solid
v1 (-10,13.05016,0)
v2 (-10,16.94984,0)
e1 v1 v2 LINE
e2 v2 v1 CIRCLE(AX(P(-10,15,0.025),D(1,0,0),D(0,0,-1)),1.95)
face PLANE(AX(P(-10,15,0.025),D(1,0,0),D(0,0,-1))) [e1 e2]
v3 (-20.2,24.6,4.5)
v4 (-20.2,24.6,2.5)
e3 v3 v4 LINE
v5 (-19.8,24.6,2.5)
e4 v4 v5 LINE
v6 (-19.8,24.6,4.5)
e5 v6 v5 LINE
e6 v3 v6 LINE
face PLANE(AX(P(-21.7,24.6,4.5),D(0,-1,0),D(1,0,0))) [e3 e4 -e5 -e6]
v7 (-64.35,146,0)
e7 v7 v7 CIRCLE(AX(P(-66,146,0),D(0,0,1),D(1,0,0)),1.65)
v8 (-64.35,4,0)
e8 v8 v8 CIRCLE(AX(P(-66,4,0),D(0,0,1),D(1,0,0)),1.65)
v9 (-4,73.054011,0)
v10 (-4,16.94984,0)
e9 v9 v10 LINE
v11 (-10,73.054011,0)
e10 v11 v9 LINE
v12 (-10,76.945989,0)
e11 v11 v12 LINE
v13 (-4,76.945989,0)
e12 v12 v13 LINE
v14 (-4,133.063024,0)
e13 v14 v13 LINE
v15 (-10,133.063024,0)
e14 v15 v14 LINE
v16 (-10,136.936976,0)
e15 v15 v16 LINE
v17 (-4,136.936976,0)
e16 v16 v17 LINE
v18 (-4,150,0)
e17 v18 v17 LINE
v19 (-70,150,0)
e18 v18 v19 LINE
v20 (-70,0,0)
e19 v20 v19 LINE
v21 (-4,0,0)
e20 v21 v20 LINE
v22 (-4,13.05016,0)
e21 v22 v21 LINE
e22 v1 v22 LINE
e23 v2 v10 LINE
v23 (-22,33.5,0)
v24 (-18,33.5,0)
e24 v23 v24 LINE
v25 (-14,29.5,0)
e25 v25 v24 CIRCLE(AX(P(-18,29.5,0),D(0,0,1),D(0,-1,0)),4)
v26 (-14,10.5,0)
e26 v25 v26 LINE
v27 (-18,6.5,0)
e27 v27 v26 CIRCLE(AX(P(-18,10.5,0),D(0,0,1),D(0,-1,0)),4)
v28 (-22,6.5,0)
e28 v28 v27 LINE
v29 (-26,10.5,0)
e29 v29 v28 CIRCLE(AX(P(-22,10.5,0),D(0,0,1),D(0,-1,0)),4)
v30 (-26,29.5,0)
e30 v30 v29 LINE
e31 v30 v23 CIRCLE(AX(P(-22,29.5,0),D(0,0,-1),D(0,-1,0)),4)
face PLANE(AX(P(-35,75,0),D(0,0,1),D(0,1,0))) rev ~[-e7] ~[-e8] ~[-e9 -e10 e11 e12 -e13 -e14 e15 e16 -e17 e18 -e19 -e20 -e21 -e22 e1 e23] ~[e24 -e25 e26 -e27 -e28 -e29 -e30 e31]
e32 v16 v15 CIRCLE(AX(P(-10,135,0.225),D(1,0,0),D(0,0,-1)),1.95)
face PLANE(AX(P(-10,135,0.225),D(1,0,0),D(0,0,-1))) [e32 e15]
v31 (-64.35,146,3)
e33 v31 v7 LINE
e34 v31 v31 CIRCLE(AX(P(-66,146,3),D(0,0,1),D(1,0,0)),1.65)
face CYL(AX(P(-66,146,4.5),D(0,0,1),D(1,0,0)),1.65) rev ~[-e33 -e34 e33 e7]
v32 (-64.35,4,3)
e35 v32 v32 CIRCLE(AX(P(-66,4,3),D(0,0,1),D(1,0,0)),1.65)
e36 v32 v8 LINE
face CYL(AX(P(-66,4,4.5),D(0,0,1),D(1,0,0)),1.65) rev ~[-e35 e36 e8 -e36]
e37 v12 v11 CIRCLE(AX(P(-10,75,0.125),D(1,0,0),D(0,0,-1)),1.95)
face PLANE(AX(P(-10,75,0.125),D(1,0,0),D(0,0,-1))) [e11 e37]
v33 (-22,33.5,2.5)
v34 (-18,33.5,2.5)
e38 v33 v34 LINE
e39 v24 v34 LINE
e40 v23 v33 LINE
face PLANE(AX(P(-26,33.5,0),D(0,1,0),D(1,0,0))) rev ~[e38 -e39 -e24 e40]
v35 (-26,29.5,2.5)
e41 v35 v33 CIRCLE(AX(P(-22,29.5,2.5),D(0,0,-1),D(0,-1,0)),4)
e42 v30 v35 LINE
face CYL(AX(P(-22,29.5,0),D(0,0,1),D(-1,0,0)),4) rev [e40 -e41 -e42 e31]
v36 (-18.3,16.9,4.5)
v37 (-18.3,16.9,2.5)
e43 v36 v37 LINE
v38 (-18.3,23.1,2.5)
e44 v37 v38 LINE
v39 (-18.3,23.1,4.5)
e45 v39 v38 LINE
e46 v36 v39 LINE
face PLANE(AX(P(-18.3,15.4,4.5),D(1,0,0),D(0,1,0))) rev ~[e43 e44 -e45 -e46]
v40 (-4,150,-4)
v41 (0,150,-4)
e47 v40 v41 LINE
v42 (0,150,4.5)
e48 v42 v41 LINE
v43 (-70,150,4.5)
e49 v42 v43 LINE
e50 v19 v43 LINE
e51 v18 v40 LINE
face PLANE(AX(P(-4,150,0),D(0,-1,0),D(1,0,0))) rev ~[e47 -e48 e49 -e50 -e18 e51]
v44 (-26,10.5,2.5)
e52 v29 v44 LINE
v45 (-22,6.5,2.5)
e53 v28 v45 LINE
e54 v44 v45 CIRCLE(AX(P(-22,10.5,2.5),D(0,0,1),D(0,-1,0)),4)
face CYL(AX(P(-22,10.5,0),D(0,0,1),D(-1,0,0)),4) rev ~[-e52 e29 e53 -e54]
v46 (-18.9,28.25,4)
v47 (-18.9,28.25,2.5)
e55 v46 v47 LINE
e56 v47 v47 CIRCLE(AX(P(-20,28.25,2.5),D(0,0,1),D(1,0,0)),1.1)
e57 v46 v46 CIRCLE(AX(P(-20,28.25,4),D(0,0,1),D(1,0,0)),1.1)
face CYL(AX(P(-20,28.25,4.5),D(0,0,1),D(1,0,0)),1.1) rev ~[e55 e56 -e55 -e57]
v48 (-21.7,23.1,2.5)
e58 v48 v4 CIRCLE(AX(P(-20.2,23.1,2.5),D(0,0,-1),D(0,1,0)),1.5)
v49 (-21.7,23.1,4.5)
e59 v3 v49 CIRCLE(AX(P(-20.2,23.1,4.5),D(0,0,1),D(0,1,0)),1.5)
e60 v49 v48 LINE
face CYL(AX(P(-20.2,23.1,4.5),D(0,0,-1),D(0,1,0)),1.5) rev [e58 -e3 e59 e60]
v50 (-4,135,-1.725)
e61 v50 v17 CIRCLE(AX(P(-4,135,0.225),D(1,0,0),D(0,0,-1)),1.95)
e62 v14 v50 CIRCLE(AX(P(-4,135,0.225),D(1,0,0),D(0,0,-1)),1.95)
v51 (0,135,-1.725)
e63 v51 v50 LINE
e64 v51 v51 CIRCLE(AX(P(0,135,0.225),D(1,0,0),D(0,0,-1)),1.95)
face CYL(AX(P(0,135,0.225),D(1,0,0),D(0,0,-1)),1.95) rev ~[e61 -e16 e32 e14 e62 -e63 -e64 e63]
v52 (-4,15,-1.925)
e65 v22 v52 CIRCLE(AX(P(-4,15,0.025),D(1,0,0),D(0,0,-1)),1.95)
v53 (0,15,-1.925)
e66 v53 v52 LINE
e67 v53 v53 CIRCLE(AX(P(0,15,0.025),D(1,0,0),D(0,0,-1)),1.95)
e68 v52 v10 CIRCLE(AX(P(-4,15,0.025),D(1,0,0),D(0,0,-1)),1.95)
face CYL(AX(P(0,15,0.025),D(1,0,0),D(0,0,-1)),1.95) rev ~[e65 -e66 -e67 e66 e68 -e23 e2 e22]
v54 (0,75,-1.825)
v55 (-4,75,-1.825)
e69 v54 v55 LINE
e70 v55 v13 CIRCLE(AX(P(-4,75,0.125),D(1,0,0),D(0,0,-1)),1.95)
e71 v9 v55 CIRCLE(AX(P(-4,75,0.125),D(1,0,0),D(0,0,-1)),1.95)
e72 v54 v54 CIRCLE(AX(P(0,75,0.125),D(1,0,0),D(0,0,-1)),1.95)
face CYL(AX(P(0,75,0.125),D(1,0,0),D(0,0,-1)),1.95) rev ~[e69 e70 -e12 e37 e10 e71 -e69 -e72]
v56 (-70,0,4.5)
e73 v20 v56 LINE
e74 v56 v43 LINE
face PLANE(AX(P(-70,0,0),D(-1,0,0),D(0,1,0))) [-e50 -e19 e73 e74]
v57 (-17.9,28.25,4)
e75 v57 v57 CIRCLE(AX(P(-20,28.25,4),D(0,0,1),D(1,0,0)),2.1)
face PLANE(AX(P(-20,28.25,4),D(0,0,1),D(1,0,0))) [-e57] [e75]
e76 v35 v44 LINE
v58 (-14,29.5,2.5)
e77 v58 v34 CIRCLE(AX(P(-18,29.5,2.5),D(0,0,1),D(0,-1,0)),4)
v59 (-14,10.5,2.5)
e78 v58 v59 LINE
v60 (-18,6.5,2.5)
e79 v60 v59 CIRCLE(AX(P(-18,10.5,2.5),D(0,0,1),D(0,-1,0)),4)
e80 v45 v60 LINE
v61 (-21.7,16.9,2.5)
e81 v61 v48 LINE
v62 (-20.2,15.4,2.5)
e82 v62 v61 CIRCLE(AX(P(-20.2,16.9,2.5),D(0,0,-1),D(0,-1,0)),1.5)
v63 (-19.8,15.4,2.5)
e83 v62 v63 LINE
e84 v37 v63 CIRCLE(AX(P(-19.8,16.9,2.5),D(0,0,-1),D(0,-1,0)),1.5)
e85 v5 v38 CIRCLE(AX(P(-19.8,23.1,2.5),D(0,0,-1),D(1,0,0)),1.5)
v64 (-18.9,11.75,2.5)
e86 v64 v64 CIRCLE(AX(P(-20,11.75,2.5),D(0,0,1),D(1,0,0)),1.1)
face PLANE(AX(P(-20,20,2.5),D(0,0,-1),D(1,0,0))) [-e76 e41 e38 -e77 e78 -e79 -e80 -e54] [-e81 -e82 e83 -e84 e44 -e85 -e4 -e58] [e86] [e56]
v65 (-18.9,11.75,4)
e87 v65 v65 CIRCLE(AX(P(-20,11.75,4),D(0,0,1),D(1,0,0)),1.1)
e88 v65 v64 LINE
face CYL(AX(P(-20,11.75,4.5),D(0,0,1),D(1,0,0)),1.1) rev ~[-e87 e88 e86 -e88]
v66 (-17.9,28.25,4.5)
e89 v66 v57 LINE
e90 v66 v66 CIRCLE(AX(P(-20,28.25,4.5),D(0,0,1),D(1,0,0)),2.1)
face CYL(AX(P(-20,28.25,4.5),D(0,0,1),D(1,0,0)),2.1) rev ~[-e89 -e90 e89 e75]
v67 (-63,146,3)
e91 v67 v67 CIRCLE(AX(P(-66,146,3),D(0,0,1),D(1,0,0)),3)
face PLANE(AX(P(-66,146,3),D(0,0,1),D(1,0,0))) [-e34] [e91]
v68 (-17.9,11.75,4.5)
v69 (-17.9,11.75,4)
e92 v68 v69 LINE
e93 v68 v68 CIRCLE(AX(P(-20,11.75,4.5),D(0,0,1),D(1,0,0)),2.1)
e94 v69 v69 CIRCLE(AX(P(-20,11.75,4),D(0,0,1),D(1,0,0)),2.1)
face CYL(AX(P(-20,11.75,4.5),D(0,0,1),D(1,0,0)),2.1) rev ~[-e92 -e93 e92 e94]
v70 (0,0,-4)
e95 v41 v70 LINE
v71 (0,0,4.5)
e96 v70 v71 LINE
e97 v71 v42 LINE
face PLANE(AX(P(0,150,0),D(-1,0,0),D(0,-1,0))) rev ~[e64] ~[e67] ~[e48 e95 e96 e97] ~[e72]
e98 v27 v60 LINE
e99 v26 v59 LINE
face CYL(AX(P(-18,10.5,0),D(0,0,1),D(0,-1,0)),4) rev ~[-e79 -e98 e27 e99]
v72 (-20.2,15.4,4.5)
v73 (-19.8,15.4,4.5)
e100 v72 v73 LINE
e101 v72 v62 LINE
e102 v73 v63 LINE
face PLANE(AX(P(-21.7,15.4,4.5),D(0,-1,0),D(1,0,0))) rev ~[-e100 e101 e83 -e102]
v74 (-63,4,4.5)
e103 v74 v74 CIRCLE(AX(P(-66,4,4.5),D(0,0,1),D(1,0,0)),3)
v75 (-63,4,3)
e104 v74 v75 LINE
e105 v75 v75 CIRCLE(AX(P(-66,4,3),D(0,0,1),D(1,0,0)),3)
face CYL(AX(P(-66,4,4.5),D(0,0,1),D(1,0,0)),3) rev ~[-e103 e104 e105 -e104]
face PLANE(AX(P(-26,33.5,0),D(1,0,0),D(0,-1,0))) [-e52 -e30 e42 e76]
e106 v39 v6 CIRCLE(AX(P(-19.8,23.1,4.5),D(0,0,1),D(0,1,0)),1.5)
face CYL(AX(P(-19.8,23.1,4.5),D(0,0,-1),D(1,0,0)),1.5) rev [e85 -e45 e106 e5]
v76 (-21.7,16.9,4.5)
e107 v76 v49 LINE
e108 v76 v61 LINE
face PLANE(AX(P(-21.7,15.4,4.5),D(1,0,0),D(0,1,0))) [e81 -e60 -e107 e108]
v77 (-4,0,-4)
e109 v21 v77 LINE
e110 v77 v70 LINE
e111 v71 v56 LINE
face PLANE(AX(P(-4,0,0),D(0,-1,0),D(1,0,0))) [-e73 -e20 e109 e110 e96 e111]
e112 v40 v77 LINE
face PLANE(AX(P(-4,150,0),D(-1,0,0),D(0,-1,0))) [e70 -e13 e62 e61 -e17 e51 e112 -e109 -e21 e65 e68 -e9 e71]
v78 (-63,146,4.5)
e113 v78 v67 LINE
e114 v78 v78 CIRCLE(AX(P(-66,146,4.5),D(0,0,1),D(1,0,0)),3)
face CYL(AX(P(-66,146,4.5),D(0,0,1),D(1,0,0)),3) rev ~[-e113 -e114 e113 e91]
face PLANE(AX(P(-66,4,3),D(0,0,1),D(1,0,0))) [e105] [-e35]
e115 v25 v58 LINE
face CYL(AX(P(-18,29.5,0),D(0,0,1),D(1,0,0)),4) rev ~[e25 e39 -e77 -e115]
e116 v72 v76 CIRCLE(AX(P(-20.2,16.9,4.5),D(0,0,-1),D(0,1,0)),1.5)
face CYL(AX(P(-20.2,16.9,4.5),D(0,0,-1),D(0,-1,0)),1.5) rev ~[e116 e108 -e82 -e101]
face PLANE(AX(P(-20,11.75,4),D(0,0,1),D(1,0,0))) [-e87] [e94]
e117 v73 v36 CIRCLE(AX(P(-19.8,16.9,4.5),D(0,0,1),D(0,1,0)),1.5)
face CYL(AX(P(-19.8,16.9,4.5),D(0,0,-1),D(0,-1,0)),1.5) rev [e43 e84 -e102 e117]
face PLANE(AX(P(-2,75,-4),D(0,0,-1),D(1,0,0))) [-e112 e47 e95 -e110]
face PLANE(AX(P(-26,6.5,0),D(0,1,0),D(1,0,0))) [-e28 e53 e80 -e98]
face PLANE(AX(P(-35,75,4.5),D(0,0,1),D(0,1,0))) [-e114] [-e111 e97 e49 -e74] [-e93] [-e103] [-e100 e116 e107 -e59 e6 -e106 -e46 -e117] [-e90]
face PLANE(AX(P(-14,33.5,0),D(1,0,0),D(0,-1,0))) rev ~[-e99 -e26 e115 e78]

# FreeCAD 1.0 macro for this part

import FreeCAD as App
import Part
import Sketcher

V = App.Vector


def edges_at(feature, points):
    """Names of the edges that pass closest to the given points."""
    edges = feature.Shape.Edges
    near = lambda p: min(range(len(edges)), key=lambda i: edges[i].distToShape(Part.Vertex(*p))[0])
    return sorted({f"Edge{near(p) + 1}" for p in points})

doc = App.newDocument("Part")
body = doc.addObject("PartDesign::Body", "Body")

sketch1 = doc.addObject("Sketcher::SketchObject", "Sketch")
body.addObject(sketch1)
sketch1.AttachmentSupport = (doc.XY_Plane, [""])
sketch1.MapMode = "FlatFace"
sketch1.addGeometry(Part.LineSegment(V(-70, 0, 0), V(0, 0, 0)), False)
sketch1.addGeometry(Part.LineSegment(V(0, 0, 0), V(0, 150, 0)), False)
sketch1.addGeometry(Part.LineSegment(V(0, 150, 0), V(-70, 150, 0)), False)
sketch1.addGeometry(Part.LineSegment(V(-70, 150, 0), V(-70, 0, 0)), False)
sketch1.addConstraint(Sketcher.Constraint("Coincident", 0, 2, 1, 1))
sketch1.addConstraint(Sketcher.Constraint("Coincident", 1, 2, 2, 1))
sketch1.addConstraint(Sketcher.Constraint("Coincident", 2, 2, 3, 1))
sketch1.addConstraint(Sketcher.Constraint("Coincident", 3, 2, 0, 1))
sketch1.addConstraint(Sketcher.Constraint("Horizontal", 0))
sketch1.addConstraint(Sketcher.Constraint("Vertical", 1))
sketch1.addConstraint(Sketcher.Constraint("Horizontal", 2))
sketch1.addConstraint(Sketcher.Constraint("Vertical", 3))
sketch1.addConstraint(Sketcher.Constraint("Coincident", 0, 2, -1, 1))
sketch1.addConstraint(Sketcher.Constraint("DistanceX", 0, 1, 0, 2, 70.0))
sketch1.addConstraint(Sketcher.Constraint("DistanceY", 1, 1, 1, 2, 150.0))
pad1 = doc.addObject("PartDesign::Pad", "Pad")
body.addObject(pad1)
pad1.Profile = sketch1
pad1.Length = 4.5

sketch2 = doc.addObject("Sketcher::SketchObject", "Sketch001")
body.addObject(sketch2)
sketch2.AttachmentSupport = (doc.XY_Plane, [""])
sketch2.MapMode = "FlatFace"
sketch2.addGeometry(Part.LineSegment(V(-4, 0, 0), V(-4, 150, 0)), False)
sketch2.addGeometry(Part.LineSegment(V(-4, 150, 0), V(0, 150, 0)), False)
sketch2.addGeometry(Part.LineSegment(V(0, 150, 0), V(0, 0, 0)), False)
sketch2.addGeometry(Part.LineSegment(V(0, 0, 0), V(-4, 0, 0)), False)
sketch2.addConstraint(Sketcher.Constraint("Coincident", 0, 2, 1, 1))
sketch2.addConstraint(Sketcher.Constraint("Coincident", 1, 2, 2, 1))
sketch2.addConstraint(Sketcher.Constraint("Coincident", 2, 2, 3, 1))
sketch2.addConstraint(Sketcher.Constraint("Coincident", 3, 2, 0, 1))
sketch2.addConstraint(Sketcher.Constraint("Vertical", 0))
sketch2.addConstraint(Sketcher.Constraint("Horizontal", 1))
sketch2.addConstraint(Sketcher.Constraint("Vertical", 2))
sketch2.addConstraint(Sketcher.Constraint("Horizontal", 3))
sketch2.addConstraint(Sketcher.Constraint("Coincident", 2, 2, -1, 1))
sketch2.addConstraint(Sketcher.Constraint("DistanceX", 1, 1, 1, 2, 4.0))
sketch2.addConstraint(Sketcher.Constraint("DistanceY", 0, 1, 0, 2, 150.0))
pad2 = doc.addObject("PartDesign::Pad", "Pad001")
body.addObject(pad2)
pad2.Profile = sketch2
pad2.Length = 4
pad2.Reversed = True

sketch3 = doc.addObject("Sketcher::SketchObject", "Sketch002")
body.addObject(sketch3)
sketch3.AttachmentSupport = (doc.YZ_Plane, [""])
sketch3.MapMode = "FlatFace"
sketch3.addGeometry(Part.Circle(V(15, 0, 0), V(0, 0, 1), 1.9), False)
sketch3.addGeometry(Part.Circle(V(75, 0.1, 0), V(0, 0, 1), 1.9), False)
sketch3.addGeometry(Part.Circle(V(135, 0.2, 0), V(0, 0, 1), 1.9), False)
sketch3.addConstraint(Sketcher.Constraint("Equal", 0, 1))
sketch3.addConstraint(Sketcher.Constraint("Equal", 1, 2))
sketch3.addConstraint(Sketcher.Constraint("Diameter", 0, 3.9))
sketch3.addConstraint(Sketcher.Constraint("DistanceX", -1, 1, 0, 3, 15.0))
sketch3.addConstraint(Sketcher.Constraint("DistanceX", -1, 1, 1, 3, 75.0))
sketch3.addConstraint(Sketcher.Constraint("DistanceX", -1, 1, 2, 3, 135.0))
sketch3.addConstraint(Sketcher.Constraint("DistanceY", 0, 3, 1, 3, 0.1))
sketch3.addConstraint(Sketcher.Constraint("DistanceY", 1, 3, 2, 3, 0.1))
sketch3.addConstraint(Sketcher.Constraint("DistanceY", -1, 1, 0, 3, 0.025))
pocket1 = doc.addObject("PartDesign::Pocket", "Pocket")
body.addObject(pocket1)
pocket1.Profile = sketch3
pocket1.Length = 10

sketch4 = doc.addObject("Sketcher::SketchObject", "Sketch003")
body.addObject(sketch4)
sketch4.AttachmentSupport = (doc.XY_Plane, [""])
sketch4.MapMode = "FlatFace"
sketch4.AttachmentOffset = App.Placement(V(0, 0, 4.5), App.Rotation())
sketch4.addGeometry(Part.Circle(V(-66, 146, 0), V(0, 0, 1), 1.6), False)
sketch4.addGeometry(Part.Circle(V(-66, 4, 0), V(0, 0, 1), 1.6), False)
sketch4.addConstraint(Sketcher.Constraint("Equal", 0, 1))
sketch4.addConstraint(Sketcher.Constraint("Vertical", 0, 3, 1, 3))
sketch4.addConstraint(Sketcher.Constraint("Diameter", 0, 3.3))
sketch4.addConstraint(Sketcher.Constraint("DistanceX", 0, 3, -1, 1, 66.0))
sketch4.addConstraint(Sketcher.Constraint("DistanceY", -1, 1, 0, 3, 146.0))
sketch4.addConstraint(Sketcher.Constraint("DistanceY", -1, 1, 1, 3, 4.0))
pocket2 = doc.addObject("PartDesign::Pocket", "Pocket001")
body.addObject(pocket2)
pocket2.Profile = sketch4
pocket2.Type = "ThroughAll"

sketch5 = doc.addObject("Sketcher::SketchObject", "Sketch004")
body.addObject(sketch5)
sketch5.AttachmentSupport = (doc.XY_Plane, [""])
sketch5.MapMode = "FlatFace"
sketch5.AttachmentOffset = App.Placement(V(0, 0, 4.5), App.Rotation())
sketch5.addGeometry(Part.Circle(V(-66, 146, 0), V(0, 0, 1), 3), False)
sketch5.addGeometry(Part.Circle(V(-66, 4, 0), V(0, 0, 1), 3), False)
sketch5.addConstraint(Sketcher.Constraint("Equal", 0, 1))
sketch5.addConstraint(Sketcher.Constraint("Vertical", 0, 3, 1, 3))
sketch5.addConstraint(Sketcher.Constraint("Diameter", 0, 6.0))
sketch5.addConstraint(Sketcher.Constraint("DistanceX", 0, 3, -1, 1, 66.0))
sketch5.addConstraint(Sketcher.Constraint("DistanceY", -1, 1, 0, 3, 146.0))
sketch5.addConstraint(Sketcher.Constraint("DistanceY", -1, 1, 1, 3, 4.0))
pocket3 = doc.addObject("PartDesign::Pocket", "Pocket002")
body.addObject(pocket3)
pocket3.Profile = sketch5
pocket3.Length = 1.5

sketch6 = doc.addObject("Sketcher::SketchObject", "Sketch005")
body.addObject(sketch6)
sketch6.AttachmentSupport = (doc.XY_Plane, [""])
sketch6.MapMode = "FlatFace"
sketch6.AttachmentOffset = App.Placement(V(0, 0, 4.5), App.Rotation())
sketch6.addGeometry(Part.Circle(V(-20, 28.2, 0), V(0, 0, 1), 2.1), False)
sketch6.addGeometry(Part.Circle(V(-20, 11.8, 0), V(0, 0, 1), 2.1), False)
sketch6.addConstraint(Sketcher.Constraint("Equal", 0, 1))
sketch6.addConstraint(Sketcher.Constraint("Vertical", 0, 3, 1, 3))
sketch6.addConstraint(Sketcher.Constraint("Diameter", 0, 4.2))
sketch6.addConstraint(Sketcher.Constraint("DistanceX", 0, 3, -1, 1, 20.0))
sketch6.addConstraint(Sketcher.Constraint("DistanceY", 1, 3, 0, 3, 16.5))
sketch6.addConstraint(Sketcher.Constraint("DistanceY", -1, 1, 0, 3, 28.25))
pocket4 = doc.addObject("PartDesign::Pocket", "Pocket003")
body.addObject(pocket4)
pocket4.Profile = sketch6
pocket4.Length = 0.5

sketch7 = doc.addObject("Sketcher::SketchObject", "Sketch006")
body.addObject(sketch7)
sketch7.AttachmentSupport = (doc.XY_Plane, [""])
sketch7.MapMode = "FlatFace"
sketch7.AttachmentOffset = App.Placement(V(0, 0, 4.5), App.Rotation())
sketch7.addGeometry(Part.Circle(V(-20, 11.8, 0), V(0, 0, 1), 1.1), False)
sketch7.addGeometry(Part.Circle(V(-20, 28.2, 0), V(0, 0, 1), 1.1), False)
sketch7.addGeometry(Part.LineSegment(V(-21.7, 24.6, 0), V(-21.7, 15.4, 0)), False)
sketch7.addGeometry(Part.LineSegment(V(-21.7, 15.4, 0), V(-18.3, 15.4, 0)), False)
sketch7.addGeometry(Part.LineSegment(V(-18.3, 15.4, 0), V(-18.3, 24.6, 0)), False)
sketch7.addGeometry(Part.LineSegment(V(-18.3, 24.6, 0), V(-21.7, 24.6, 0)), False)
sketch7.addConstraint(Sketcher.Constraint("Coincident", 2, 2, 3, 1))
sketch7.addConstraint(Sketcher.Constraint("Coincident", 3, 2, 4, 1))
sketch7.addConstraint(Sketcher.Constraint("Coincident", 4, 2, 5, 1))
sketch7.addConstraint(Sketcher.Constraint("Coincident", 5, 2, 2, 1))
sketch7.addConstraint(Sketcher.Constraint("Vertical", 2))
sketch7.addConstraint(Sketcher.Constraint("Horizontal", 3))
sketch7.addConstraint(Sketcher.Constraint("Vertical", 4))
sketch7.addConstraint(Sketcher.Constraint("Horizontal", 5))
sketch7.addConstraint(Sketcher.Constraint("Equal", 0, 1))
sketch7.addConstraint(Sketcher.Constraint("Vertical", 0, 3, 1, 3))
sketch7.addConstraint(Sketcher.Constraint("Diameter", 0, 2.2))
sketch7.addConstraint(Sketcher.Constraint("DistanceX", 3, 1, 3, 2, 3.4))
sketch7.addConstraint(Sketcher.Constraint("DistanceY", 2, 2, 2, 1, 9.2))
sketch7.addConstraint(Sketcher.Constraint("DistanceX", 0, 3, -1, 1, 20.0))
sketch7.addConstraint(Sketcher.Constraint("DistanceX", 2, 2, -1, 1, 21.7))
sketch7.addConstraint(Sketcher.Constraint("DistanceY", -1, 1, 2, 2, 15.4))
sketch7.addConstraint(Sketcher.Constraint("DistanceY", 0, 3, 1, 3, 16.5))
sketch7.addConstraint(Sketcher.Constraint("DistanceY", -1, 1, 0, 3, 11.75))
pocket5 = doc.addObject("PartDesign::Pocket", "Pocket004")
body.addObject(pocket5)
pocket5.Profile = sketch7
pocket5.Type = "ThroughAll"
doc.recompute()

fillet = doc.addObject("PartDesign::Fillet", "Fillet")
body.addObject(fillet)
fillet.Base = (pocket5, edges_at(pocket5, [
    (-18.3, 24.6, 2.25),
    (-18.3, 15.4, 2.25),
    (-21.7, 15.4, 2.25),
    (-21.7, 24.6, 2.25),
]))
fillet.Radius = 1.5

sketch8 = doc.addObject("Sketcher::SketchObject", "Sketch007")
body.addObject(sketch8)
sketch8.AttachmentSupport = (doc.XY_Plane, [""])
sketch8.MapMode = "FlatFace"
sketch8.addGeometry(Part.LineSegment(V(-26, 6, 0), V(-26, 34, 0)), False)
sketch8.addGeometry(Part.LineSegment(V(-26, 34, 0), V(-14, 34, 0)), False)
sketch8.addGeometry(Part.LineSegment(V(-14, 34, 0), V(-14, 6, 0)), False)
sketch8.addGeometry(Part.LineSegment(V(-14, 6, 0), V(-26, 6, 0)), False)
sketch8.addConstraint(Sketcher.Constraint("Coincident", 0, 2, 1, 1))
sketch8.addConstraint(Sketcher.Constraint("Coincident", 1, 2, 2, 1))
sketch8.addConstraint(Sketcher.Constraint("Coincident", 2, 2, 3, 1))
sketch8.addConstraint(Sketcher.Constraint("Coincident", 3, 2, 0, 1))
sketch8.addConstraint(Sketcher.Constraint("Vertical", 0))
sketch8.addConstraint(Sketcher.Constraint("Horizontal", 1))
sketch8.addConstraint(Sketcher.Constraint("Vertical", 2))
sketch8.addConstraint(Sketcher.Constraint("Horizontal", 3))
sketch8.addConstraint(Sketcher.Constraint("DistanceX", 1, 1, 1, 2, 12.0))
sketch8.addConstraint(Sketcher.Constraint("DistanceY", 0, 1, 0, 2, 27.0))
sketch8.addConstraint(Sketcher.Constraint("DistanceX", 0, 2, -1, 1, 26.0))
sketch8.addConstraint(Sketcher.Constraint("DistanceY", -1, 1, 0, 2, 33.5))
pocket6 = doc.addObject("PartDesign::Pocket", "Pocket005")
body.addObject(pocket6)
pocket6.Profile = sketch8
pocket6.Length = 2.5
pocket6.Reversed = True
doc.recompute()

fillet2 = doc.addObject("PartDesign::Fillet", "Fillet001")
body.addObject(fillet2)
fillet2.Base = (pocket6, edges_at(pocket6, [
    (-14, 6.5, 1.25),
    (-14, 33.5, 1.25),
    (-26, 33.5, 1.25),
    (-26, 6.5, 1.25),
]))
fillet2.Radius = 4

doc.recompute()
